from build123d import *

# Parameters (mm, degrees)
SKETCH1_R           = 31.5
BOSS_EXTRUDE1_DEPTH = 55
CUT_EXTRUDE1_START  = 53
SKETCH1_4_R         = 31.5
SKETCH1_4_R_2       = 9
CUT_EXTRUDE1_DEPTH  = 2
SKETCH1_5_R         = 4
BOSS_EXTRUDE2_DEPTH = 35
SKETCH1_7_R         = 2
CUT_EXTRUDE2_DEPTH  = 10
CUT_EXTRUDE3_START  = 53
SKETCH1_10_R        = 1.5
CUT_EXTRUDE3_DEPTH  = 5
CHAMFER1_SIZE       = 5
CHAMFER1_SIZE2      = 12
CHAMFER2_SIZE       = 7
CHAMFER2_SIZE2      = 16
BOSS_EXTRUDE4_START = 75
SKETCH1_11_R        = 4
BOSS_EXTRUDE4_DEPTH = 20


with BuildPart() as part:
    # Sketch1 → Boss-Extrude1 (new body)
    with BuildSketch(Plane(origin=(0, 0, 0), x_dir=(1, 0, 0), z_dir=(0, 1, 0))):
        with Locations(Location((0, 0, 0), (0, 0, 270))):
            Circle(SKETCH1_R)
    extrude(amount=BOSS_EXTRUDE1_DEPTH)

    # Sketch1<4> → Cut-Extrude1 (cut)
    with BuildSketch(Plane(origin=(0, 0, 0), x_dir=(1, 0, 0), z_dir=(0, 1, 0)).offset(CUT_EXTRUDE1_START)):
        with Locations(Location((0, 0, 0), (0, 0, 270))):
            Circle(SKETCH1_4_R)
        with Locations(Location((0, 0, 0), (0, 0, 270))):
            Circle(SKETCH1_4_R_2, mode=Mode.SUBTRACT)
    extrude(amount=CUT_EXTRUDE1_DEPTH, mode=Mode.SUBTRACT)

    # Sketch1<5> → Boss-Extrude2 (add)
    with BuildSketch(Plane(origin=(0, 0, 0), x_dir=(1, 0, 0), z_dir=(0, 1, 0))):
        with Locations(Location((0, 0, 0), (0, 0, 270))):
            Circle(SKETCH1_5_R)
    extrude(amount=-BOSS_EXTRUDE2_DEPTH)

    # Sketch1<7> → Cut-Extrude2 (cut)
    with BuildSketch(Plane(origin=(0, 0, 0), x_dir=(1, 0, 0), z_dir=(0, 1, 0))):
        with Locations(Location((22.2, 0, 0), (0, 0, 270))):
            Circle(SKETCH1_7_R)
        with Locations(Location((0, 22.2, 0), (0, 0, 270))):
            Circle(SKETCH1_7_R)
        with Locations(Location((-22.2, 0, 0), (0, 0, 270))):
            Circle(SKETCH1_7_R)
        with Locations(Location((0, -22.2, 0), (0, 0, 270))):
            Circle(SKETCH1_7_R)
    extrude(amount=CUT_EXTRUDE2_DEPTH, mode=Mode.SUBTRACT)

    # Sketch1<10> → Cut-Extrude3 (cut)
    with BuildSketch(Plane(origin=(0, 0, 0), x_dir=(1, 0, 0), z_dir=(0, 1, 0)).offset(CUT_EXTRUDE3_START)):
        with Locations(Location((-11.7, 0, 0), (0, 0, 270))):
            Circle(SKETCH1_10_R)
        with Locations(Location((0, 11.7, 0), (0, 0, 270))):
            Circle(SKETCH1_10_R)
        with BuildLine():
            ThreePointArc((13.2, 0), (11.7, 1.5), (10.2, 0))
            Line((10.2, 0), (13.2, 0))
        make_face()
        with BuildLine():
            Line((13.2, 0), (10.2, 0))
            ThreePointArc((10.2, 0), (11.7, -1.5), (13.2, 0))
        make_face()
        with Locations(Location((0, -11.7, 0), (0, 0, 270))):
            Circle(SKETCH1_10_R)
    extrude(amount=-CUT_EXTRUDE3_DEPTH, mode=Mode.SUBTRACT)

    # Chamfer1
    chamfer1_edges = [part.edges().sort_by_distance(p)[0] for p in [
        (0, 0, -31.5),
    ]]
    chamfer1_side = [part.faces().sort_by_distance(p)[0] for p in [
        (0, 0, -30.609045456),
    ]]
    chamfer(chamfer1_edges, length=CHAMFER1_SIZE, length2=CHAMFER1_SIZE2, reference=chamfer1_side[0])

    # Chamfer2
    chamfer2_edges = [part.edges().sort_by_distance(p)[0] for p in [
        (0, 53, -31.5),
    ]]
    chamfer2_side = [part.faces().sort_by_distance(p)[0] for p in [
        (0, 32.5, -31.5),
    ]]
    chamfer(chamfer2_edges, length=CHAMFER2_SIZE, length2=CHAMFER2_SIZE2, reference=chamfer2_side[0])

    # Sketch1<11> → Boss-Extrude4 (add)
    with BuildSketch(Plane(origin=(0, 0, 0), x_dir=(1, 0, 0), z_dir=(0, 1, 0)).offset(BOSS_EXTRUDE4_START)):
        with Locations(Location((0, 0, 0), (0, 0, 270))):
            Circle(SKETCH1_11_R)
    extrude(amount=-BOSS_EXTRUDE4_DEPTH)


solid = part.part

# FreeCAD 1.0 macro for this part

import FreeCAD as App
import Part
import Sketcher

V = App.Vector


def edges_at(feature, points):
    """Names of the edges that pass closest to the given points."""
    edges = feature.Shape.Edges
    near = lambda p: min(range(len(edges)), key=lambda i: edges[i].distToShape(Part.Vertex(*p))[0])
    return sorted({f"Edge{near(p) + 1}" for p in points})

doc = App.newDocument("Part")
body = doc.addObject("PartDesign::Body", "Body")

sketch1 = body.newObject("Sketcher::SketchObject", "Sketch")
sketch1.AttachmentSupport = (doc.getObject("XZ_Plane"), [""])
sketch1.MapMode = "FlatFace"
sketch1.addGeometry(Part.Circle(V(0, 0, 0), V(0, 0, 1), 32), False)
sketch1.addConstraint([
    Sketcher.Constraint("Coincident", 0, 3, -1, 1),
    Sketcher.Constraint("Diameter", 0, 63.0),
])
pad1 = body.newObject("PartDesign::Pad", "Pad")
pad1.Profile = sketch1
pad1.Length = 55
pad1.Reversed = True

sketch2 = body.newObject("Sketcher::SketchObject", "Sketch001")
sketch2.AttachmentSupport = (doc.getObject("XZ_Plane"), [""])
sketch2.MapMode = "FlatFace"
sketch2.AttachmentOffset = App.Placement(V(0, 0, -53), App.Rotation())
sketch2.addGeometry([
    Part.Circle(V(0, 0, 0), V(0, 0, 1), 32),
    Part.Circle(V(0, 0, 0), V(0, 0, 1), 9),
], False)
sketch2.addConstraint([
    Sketcher.Constraint("Coincident", 0, 3, -1, 1),
    Sketcher.Constraint("Coincident", 1, 3, -1, 1),
    Sketcher.Constraint("Diameter", 0, 63.0),
    Sketcher.Constraint("Diameter", 1, 18.0),
])
pocket1 = body.newObject("PartDesign::Pocket", "Pocket")
pocket1.Profile = sketch2
pocket1.Length = 2

sketch3 = body.newObject("Sketcher::SketchObject", "Sketch002")
sketch3.AttachmentSupport = (doc.getObject("XZ_Plane"), [""])
sketch3.MapMode = "FlatFace"
sketch3.addGeometry(Part.Circle(V(0, 0, 0), V(0, 0, 1), 4), False)
sketch3.addConstraint([
    Sketcher.Constraint("Coincident", 0, 3, -1, 1),
    Sketcher.Constraint("Diameter", 0, 8.0),
])
pad2 = body.newObject("PartDesign::Pad", "Pad001")
pad2.Profile = sketch3
pad2.Length = 35

sketch4 = body.newObject("Sketcher::SketchObject", "Sketch003")
sketch4.AttachmentSupport = (doc.getObject("XZ_Plane"), [""])
sketch4.MapMode = "FlatFace"
sketch4.addGeometry([
    Part.Circle(V(22.2, 0, 0), V(0, 0, 1), 2),
    Part.Circle(V(0, -22.2, 0), V(0, 0, 1), 2),
    Part.Circle(V(-22.2, 0, 0), V(0, 0, 1), 2),
    Part.Circle(V(0, 22.2, 0), V(0, 0, 1), 2),
], False)
sketch4.addConstraint([
    Sketcher.Constraint("Equal", 0, 1),
    Sketcher.Constraint("Equal", 1, 2),
    Sketcher.Constraint("Equal", 2, 3),
    Sketcher.Constraint("Symmetric", 0, 3, 2, 3, -1, 1),
    Sketcher.Constraint("Symmetric", 1, 3, 3, 3, -1, 1),
    Sketcher.Constraint("PointOnObject", 0, 3, -1),
    Sketcher.Constraint("PointOnObject", 1, 3, -2),
    Sketcher.Constraint("Diameter", 0, 4.0),
    Sketcher.Constraint("DistanceX", -1, 1, 0, 3, 22.2),
    Sketcher.Constraint("DistanceY", 1, 3, -1, 1, 22.2),
])
pocket2 = body.newObject("PartDesign::Pocket", "Pocket001")
pocket2.Profile = sketch4
pocket2.Length = 10

sketch5 = body.newObject("Sketcher::SketchObject", "Sketch004")
sketch5.AttachmentSupport = (doc.getObject("XZ_Plane"), [""])
sketch5.MapMode = "FlatFace"
sketch5.AttachmentOffset = App.Placement(V(0, 0, -53), App.Rotation())
sketch5.addGeometry([
    Part.Circle(V(-11.7, 0, 0), V(0, 0, 1), 1.5),
    Part.Circle(V(0, -11.7, 0), V(0, 0, 1), 1.5),
    Part.Circle(V(11.7, 0, 0), V(0, 0, 1), 1.5),
    Part.Circle(V(0, 11.7, 0), V(0, 0, 1), 1.5),
], False)
sketch5.addConstraint([
    Sketcher.Constraint("Equal", 0, 1),
    Sketcher.Constraint("Equal", 1, 2),
    Sketcher.Constraint("Equal", 2, 3),
    Sketcher.Constraint("Symmetric", 0, 3, 2, 3, -1, 1),
    Sketcher.Constraint("Symmetric", 1, 3, 3, 3, -1, 1),
    Sketcher.Constraint("PointOnObject", 0, 3, -1),
    Sketcher.Constraint("PointOnObject", 1, 3, -2),
    Sketcher.Constraint("Diameter", 0, 3.0),
    Sketcher.Constraint("DistanceX", 0, 3, -1, 1, 11.7),
    Sketcher.Constraint("DistanceY", 1, 3, -1, 1, 11.7),
])
pocket3 = body.newObject("PartDesign::Pocket", "Pocket002")
pocket3.Profile = sketch5
pocket3.Length = 5
pocket3.Reversed = True
doc.recompute()

chamfer = body.newObject("PartDesign::Chamfer", "Chamfer")
chamfer.Base = (pocket3, edges_at(pocket3, [(0, 0, -31.5)]))
chamfer.ChamferType = "Two distances"
chamfer.Size = 5
chamfer.Size2 = 12
chamfer.FlipDirection = True
doc.recompute()

chamfer2 = body.newObject("PartDesign::Chamfer", "Chamfer001")
chamfer2.Base = (chamfer, edges_at(chamfer, [(0, 53, -31.5)]))
chamfer2.ChamferType = "Two distances"
chamfer2.Size = 7
chamfer2.Size2 = 16

sketch6 = body.newObject("Sketcher::SketchObject", "Sketch005")
sketch6.AttachmentSupport = (doc.getObject("XZ_Plane"), [""])
sketch6.MapMode = "FlatFace"
sketch6.AttachmentOffset = App.Placement(V(0, 0, -75), App.Rotation())
sketch6.addGeometry(Part.Circle(V(0, 0, 0), V(0, 0, 1), 4), False)
sketch6.addConstraint([
    Sketcher.Constraint("Coincident", 0, 3, -1, 1),
    Sketcher.Constraint("Diameter", 0, 8.0),
])
pad3 = body.newObject("PartDesign::Pad", "Pad002")
pad3.Profile = sketch6
pad3.Length = 20

doc.recompute()
